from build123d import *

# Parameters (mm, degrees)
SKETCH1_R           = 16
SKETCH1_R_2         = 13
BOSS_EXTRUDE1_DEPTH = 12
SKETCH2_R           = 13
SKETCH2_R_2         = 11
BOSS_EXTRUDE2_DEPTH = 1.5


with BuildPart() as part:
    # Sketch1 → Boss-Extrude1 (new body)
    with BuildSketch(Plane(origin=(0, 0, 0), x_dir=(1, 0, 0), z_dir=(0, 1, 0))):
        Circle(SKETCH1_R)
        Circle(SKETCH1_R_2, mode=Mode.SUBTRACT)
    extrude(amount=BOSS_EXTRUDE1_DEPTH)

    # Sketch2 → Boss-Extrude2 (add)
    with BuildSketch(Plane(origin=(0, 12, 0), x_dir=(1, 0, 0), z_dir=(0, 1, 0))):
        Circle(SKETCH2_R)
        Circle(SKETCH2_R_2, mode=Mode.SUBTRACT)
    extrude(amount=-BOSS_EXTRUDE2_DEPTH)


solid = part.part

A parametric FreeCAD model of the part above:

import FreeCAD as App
import Part
import Sketcher
from FreeCAD import Vector
Q = App.Units.Quantity

doc = App.newDocument("Part")
body = doc.addObject("PartDesign::Body", "Body")

sketch1 = doc.addObject("Sketcher::SketchObject", "Sketch")
body.addObject(sketch1)
sketch1.AttachmentSupport = (doc.XZ_Plane, [""])
sketch1.MapMode = "FlatFace"
sketch1.addGeometry([
    Part.Circle(Vector(0, 0, 0), Vector(0, 0, 1), 16),
    Part.Circle(Vector(0, 0, 0), Vector(0, 0, 1), 13),
], False)
sketch1.addConstraint([
    Sketcher.Constraint("Coincident", 0, 3, -1, 1),
    Sketcher.Constraint("Coincident", 1, 3, -1, 1),
    Sketcher.Constraint("Diameter", 0, Q("32 mm")),
    Sketcher.Constraint("Diameter", 1, Q("26 mm")),
])
pad1 = doc.addObject("PartDesign::Pad", "Pad")
body.addObject(pad1)
pad1.Profile = sketch1
pad1.Length = 12
pad1.Reversed = True

sketch2 = doc.addObject("Sketcher::SketchObject", "Sketch001")
body.addObject(sketch2)
sketch2.AttachmentSupport = (doc.XZ_Plane, [""])
sketch2.MapMode = "FlatFace"
sketch2.AttachmentOffset = App.Placement(Vector(0, 0, -12), App.Rotation())
sketch2.addGeometry([
    Part.Circle(Vector(0, 0, 0), Vector(0, 0, 1), 13),
    Part.Circle(Vector(0, 0, 0), Vector(0, 0, 1), 11),
], False)
sketch2.addConstraint([
    Sketcher.Constraint("Coincident", 0, 3, -1, 1),
    Sketcher.Constraint("Coincident", 1, 3, -1, 1),
    Sketcher.Constraint("Diameter", 0, Q("26 mm")),
    Sketcher.Constraint("Diameter", 1, Q("22 mm")),
])
pad2 = doc.addObject("PartDesign::Pad", "Pad001")
body.addObject(pad2)
pad2.Profile = sketch2
pad2.Length = 1.5

doc.recompute()
